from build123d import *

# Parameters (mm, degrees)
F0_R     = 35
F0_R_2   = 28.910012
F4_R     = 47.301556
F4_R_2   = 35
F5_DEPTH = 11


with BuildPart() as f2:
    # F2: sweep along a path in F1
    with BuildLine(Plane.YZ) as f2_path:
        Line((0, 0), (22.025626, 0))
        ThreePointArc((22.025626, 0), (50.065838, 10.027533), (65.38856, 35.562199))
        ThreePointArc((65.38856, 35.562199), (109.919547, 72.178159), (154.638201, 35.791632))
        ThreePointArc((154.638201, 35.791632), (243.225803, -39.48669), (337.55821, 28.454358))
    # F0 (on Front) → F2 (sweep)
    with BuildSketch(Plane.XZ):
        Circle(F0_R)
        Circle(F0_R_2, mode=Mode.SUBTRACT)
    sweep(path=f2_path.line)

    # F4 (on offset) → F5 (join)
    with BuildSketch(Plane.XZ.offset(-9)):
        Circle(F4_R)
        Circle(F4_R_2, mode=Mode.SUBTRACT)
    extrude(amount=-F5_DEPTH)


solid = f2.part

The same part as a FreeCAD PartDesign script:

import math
import FreeCAD as App
import Part
import Sketcher

V = App.Vector
Q = App.Units.Quantity

doc = App.newDocument("Part")
body = doc.addObject("PartDesign::Body", "Body")

sketch1 = doc.addObject("Sketcher::SketchObject", "Sketch")
body.addObject(sketch1)
sketch1.AttachmentSupport = (doc.XZ_Plane, [""])
sketch1.MapMode = "FlatFace"
sketch1.addGeometry([
    Part.Circle(V(0, 0, 0), V(0, 0, 1), 35),
    Part.Circle(V(0, 0, 0), V(0, 0, 1), 28.910012),
], False)
sketch1.addConstraint([
    Sketcher.Constraint("Coincident", 0, 3, -1, 1),
    Sketcher.Constraint("Coincident", 1, 3, -1, 1),
    Sketcher.Constraint("Diameter", 0, Q("70 mm")),
    Sketcher.Constraint("Diameter", 1, Q("57.820024 mm")),
])

sketch2 = doc.addObject("Sketcher::SketchObject", "Sketch001")
body.addObject(sketch2)
sketch2.AttachmentSupport = (doc.YZ_Plane, [""])
sketch2.MapMode = "FlatFace"
sketch2.addGeometry([
    Part.LineSegment(V(0, 0, 0), V(22.025626, 0, 0)),
    Part.ArcOfCircle(Part.Circle(V(22.025626, 44.218497, 0), V(0, 0, 1), 44.218497), math.radians(-90.000001), math.radians(-11.289237)),
    Part.ArcOfCircle(Part.Circle(V(110.036588, 26.649362, 0), V(0, 0, 1), 45.528947), math.radians(11.583818), math.radians(168.710761)),
    Part.ArcOfCircle(Part.Circle(V(247.004799, 54.724585, 0), V(0, 0, 1), 94.287036), math.radians(-168.416183), math.radians(-16.177842)),
], False)
sketch2.addConstraint([
    Sketcher.Constraint("Tangent", 0, 2, 1, 1),
    Sketcher.Constraint("Tangent", 1, 2, 2, 2),
    Sketcher.Constraint("Tangent", 2, 1, 3, 1),
    Sketcher.Constraint("Horizontal", 0),
    Sketcher.Constraint("Coincident", 0, 1, -1, 1),
    Sketcher.Constraint("Radius", 1, Q("44.218497 mm")),
    Sketcher.Constraint("Radius", 2, Q("45.528947 mm")),
    Sketcher.Constraint("Radius", 3, Q("94.287036 mm")),
    Sketcher.Constraint("DistanceX", -1, 1, 3, 3, Q("247.004799 mm")),
    Sketcher.Constraint("DistanceY", -1, 1, 1, 2, Q("35.562199 mm")),
    Sketcher.Constraint("DistanceX", -1, 1, 2, 1, Q("154.638201 mm")),
    Sketcher.Constraint("DistanceX", -1, 1, 3, 2, Q("337.55821 mm")),
])
doc.recompute()

additivepipe = doc.addObject("PartDesign::AdditivePipe", "AdditivePipe")
body.addObject(additivepipe)
additivepipe.Profile = sketch1
additivepipe.Spine = (sketch2, ["Edge1", "Edge2", "Edge3", "Edge4"])

sketch3 = doc.addObject("Sketcher::SketchObject", "Sketch002")
body.addObject(sketch3)
sketch3.AttachmentSupport = (doc.XZ_Plane, [""])
sketch3.MapMode = "FlatFace"
sketch3.AttachmentOffset = App.Placement(V(0, 0, -9), App.Rotation())
sketch3.addGeometry([
    Part.Circle(V(0, 0, 0), V(0, 0, 1), 47.301556),
    Part.Circle(V(0, 0, 0), V(0, 0, 1), 35),
], False)
sketch3.addConstraint([
    Sketcher.Constraint("Coincident", 0, 3, -1, 1),
    Sketcher.Constraint("Coincident", 1, 3, -1, 1),
    Sketcher.Constraint("Diameter", 1, Q("70 mm")),
    Sketcher.Constraint("Diameter", 0, Q("94.603112 mm")),
])
pad1 = doc.addObject("PartDesign::Pad", "Pad")
body.addObject(pad1)
pad1.Profile = sketch3
pad1.Length = 11
pad1.Reversed = True

doc.recompute()
